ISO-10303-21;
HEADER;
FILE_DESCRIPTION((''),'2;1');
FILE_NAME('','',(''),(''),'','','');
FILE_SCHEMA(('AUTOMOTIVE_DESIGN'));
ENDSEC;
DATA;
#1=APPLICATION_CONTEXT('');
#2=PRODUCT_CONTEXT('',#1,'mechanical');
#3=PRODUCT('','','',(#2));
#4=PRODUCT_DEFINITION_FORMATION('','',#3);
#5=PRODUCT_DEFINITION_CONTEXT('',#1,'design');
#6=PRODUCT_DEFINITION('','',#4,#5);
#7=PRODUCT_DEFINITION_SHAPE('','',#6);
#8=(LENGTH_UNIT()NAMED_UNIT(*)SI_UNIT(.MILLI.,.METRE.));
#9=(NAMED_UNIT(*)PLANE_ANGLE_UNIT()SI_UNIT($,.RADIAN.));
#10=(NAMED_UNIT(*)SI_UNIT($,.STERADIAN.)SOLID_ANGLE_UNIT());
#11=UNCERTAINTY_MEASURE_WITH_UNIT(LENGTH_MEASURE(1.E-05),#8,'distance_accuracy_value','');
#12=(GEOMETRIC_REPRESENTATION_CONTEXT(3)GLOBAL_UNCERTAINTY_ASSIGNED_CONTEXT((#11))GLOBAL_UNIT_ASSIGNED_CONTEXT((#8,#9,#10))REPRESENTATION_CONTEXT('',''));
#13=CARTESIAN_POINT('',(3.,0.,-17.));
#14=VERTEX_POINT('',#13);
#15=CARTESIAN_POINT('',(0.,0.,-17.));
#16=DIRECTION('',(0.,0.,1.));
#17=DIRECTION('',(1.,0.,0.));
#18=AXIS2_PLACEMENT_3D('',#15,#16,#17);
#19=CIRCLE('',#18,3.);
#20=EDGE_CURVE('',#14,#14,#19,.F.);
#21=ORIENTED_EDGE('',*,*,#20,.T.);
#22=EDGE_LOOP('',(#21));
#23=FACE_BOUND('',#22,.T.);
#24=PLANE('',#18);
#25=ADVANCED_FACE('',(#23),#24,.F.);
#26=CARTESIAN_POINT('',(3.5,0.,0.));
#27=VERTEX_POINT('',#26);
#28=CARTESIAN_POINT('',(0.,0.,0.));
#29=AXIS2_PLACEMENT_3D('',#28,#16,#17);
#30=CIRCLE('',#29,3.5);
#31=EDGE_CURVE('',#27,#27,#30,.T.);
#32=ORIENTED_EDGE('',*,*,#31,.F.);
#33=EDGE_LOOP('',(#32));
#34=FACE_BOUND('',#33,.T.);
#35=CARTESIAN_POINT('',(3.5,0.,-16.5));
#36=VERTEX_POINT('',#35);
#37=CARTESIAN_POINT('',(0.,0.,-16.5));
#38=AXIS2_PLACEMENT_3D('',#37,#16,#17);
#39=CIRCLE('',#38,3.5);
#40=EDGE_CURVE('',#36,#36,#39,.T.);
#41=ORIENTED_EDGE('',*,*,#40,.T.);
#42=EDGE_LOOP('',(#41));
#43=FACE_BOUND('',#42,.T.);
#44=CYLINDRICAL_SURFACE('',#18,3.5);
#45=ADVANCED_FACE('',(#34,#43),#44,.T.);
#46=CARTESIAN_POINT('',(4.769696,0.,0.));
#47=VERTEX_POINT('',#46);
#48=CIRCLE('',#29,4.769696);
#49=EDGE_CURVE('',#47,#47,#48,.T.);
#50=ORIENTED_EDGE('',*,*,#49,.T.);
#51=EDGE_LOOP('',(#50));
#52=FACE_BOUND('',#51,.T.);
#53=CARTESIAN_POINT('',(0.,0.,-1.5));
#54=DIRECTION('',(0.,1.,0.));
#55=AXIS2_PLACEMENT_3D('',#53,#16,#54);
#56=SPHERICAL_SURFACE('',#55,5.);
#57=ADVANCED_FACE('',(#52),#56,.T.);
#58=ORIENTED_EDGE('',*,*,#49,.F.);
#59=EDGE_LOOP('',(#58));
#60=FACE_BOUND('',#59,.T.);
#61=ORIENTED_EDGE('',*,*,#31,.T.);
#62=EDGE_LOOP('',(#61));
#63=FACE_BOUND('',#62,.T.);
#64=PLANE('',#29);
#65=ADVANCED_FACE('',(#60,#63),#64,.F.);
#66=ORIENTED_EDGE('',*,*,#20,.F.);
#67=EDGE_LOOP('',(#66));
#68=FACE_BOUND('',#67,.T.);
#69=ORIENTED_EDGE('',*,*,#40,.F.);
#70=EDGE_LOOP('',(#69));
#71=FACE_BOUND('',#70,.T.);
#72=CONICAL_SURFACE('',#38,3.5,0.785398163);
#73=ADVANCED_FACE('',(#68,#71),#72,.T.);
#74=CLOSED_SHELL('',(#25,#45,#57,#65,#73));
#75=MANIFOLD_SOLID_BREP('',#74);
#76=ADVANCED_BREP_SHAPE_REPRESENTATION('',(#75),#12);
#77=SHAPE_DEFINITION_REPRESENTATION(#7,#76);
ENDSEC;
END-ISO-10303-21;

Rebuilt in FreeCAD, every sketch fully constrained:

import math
import FreeCAD as App
import Part
import Sketcher

V = App.Vector


def edges_at(feature, points):
    """Names of the edges that pass closest to the given points."""
    edges = feature.Shape.Edges
    near = lambda p: min(range(len(edges)), key=lambda i: edges[i].distToShape(Part.Vertex(*p))[0])
    return sorted({f"Edge{near(p) + 1}" for p in points})

doc = App.newDocument("Part")
body = doc.addObject("PartDesign::Body", "Body")

sketch1 = body.newObject("Sketcher::SketchObject", "Sketch")
sketch1.AttachmentSupport = (doc.getObject("XY_Plane"), [""])
sketch1.MapMode = "FlatFace"
sketch1.addGeometry(Part.Circle(V(0, 0, 0), V(0, 0, 1), 3.5), False)
sketch1.addConstraint(Sketcher.Constraint("Coincident", 0, 3, -1, 1))
sketch1.addConstraint(Sketcher.Constraint("Diameter", 0, 7.0))
pad1 = body.newObject("PartDesign::Pad", "Pad")
pad1.Profile = sketch1
pad1.Length = 17
pad1.Reversed = True

sketch2 = body.newObject("Sketcher::SketchObject", "Sketch001")
sketch2.AttachmentSupport = (doc.getObject("YZ_Plane"), [""])
sketch2.MapMode = "FlatFace"
sketch2.addGeometry(Part.LineSegment(V(0, 0, 0), V(4.8, 0, 0)), False)
sketch2.addGeometry(Part.ArcOfCircle(Part.Circle(V(0, -1.5, 0), V(0, 0, 1), 5), math.radians(17), math.radians(90)), False)
sketch2.addGeometry(Part.LineSegment(V(0, 3.5, 0), V(0, 0, 0)), False)
sketch2.addConstraint(Sketcher.Constraint("Coincident", 0, 2, 1, 1))
sketch2.addConstraint(Sketcher.Constraint("Coincident", 1, 2, 2, 1))
sketch2.addConstraint(Sketcher.Constraint("Coincident", 2, 2, 0, 1))
sketch2.addConstraint(Sketcher.Constraint("Horizontal", 0))
sketch2.addConstraint(Sketcher.Constraint("Vertical", 2))
sketch2.addConstraint(Sketcher.Constraint("Coincident", 2, 2, -1, 1))
sketch2.addConstraint(Sketcher.Constraint("PointOnObject", 1, 3, -2))
sketch2.addConstraint(Sketcher.Constraint("Radius", 1, 5.0))
sketch2.addConstraint(Sketcher.Constraint("DistanceY", 2, 2, 2, 1, 3.5))
revolution = body.newObject("PartDesign::Revolution", "Revolution")
revolution.Profile = sketch2
revolution.ReferenceAxis = (sketch2, ["V_Axis"])
revolution.Angle = 360
doc.recompute()

chamfer = body.newObject("PartDesign::Chamfer", "Chamfer")
chamfer.Base = (revolution, edges_at(revolution, [(-3.5, 0, -17)]))
chamfer.Size = 0.5

doc.recompute()
